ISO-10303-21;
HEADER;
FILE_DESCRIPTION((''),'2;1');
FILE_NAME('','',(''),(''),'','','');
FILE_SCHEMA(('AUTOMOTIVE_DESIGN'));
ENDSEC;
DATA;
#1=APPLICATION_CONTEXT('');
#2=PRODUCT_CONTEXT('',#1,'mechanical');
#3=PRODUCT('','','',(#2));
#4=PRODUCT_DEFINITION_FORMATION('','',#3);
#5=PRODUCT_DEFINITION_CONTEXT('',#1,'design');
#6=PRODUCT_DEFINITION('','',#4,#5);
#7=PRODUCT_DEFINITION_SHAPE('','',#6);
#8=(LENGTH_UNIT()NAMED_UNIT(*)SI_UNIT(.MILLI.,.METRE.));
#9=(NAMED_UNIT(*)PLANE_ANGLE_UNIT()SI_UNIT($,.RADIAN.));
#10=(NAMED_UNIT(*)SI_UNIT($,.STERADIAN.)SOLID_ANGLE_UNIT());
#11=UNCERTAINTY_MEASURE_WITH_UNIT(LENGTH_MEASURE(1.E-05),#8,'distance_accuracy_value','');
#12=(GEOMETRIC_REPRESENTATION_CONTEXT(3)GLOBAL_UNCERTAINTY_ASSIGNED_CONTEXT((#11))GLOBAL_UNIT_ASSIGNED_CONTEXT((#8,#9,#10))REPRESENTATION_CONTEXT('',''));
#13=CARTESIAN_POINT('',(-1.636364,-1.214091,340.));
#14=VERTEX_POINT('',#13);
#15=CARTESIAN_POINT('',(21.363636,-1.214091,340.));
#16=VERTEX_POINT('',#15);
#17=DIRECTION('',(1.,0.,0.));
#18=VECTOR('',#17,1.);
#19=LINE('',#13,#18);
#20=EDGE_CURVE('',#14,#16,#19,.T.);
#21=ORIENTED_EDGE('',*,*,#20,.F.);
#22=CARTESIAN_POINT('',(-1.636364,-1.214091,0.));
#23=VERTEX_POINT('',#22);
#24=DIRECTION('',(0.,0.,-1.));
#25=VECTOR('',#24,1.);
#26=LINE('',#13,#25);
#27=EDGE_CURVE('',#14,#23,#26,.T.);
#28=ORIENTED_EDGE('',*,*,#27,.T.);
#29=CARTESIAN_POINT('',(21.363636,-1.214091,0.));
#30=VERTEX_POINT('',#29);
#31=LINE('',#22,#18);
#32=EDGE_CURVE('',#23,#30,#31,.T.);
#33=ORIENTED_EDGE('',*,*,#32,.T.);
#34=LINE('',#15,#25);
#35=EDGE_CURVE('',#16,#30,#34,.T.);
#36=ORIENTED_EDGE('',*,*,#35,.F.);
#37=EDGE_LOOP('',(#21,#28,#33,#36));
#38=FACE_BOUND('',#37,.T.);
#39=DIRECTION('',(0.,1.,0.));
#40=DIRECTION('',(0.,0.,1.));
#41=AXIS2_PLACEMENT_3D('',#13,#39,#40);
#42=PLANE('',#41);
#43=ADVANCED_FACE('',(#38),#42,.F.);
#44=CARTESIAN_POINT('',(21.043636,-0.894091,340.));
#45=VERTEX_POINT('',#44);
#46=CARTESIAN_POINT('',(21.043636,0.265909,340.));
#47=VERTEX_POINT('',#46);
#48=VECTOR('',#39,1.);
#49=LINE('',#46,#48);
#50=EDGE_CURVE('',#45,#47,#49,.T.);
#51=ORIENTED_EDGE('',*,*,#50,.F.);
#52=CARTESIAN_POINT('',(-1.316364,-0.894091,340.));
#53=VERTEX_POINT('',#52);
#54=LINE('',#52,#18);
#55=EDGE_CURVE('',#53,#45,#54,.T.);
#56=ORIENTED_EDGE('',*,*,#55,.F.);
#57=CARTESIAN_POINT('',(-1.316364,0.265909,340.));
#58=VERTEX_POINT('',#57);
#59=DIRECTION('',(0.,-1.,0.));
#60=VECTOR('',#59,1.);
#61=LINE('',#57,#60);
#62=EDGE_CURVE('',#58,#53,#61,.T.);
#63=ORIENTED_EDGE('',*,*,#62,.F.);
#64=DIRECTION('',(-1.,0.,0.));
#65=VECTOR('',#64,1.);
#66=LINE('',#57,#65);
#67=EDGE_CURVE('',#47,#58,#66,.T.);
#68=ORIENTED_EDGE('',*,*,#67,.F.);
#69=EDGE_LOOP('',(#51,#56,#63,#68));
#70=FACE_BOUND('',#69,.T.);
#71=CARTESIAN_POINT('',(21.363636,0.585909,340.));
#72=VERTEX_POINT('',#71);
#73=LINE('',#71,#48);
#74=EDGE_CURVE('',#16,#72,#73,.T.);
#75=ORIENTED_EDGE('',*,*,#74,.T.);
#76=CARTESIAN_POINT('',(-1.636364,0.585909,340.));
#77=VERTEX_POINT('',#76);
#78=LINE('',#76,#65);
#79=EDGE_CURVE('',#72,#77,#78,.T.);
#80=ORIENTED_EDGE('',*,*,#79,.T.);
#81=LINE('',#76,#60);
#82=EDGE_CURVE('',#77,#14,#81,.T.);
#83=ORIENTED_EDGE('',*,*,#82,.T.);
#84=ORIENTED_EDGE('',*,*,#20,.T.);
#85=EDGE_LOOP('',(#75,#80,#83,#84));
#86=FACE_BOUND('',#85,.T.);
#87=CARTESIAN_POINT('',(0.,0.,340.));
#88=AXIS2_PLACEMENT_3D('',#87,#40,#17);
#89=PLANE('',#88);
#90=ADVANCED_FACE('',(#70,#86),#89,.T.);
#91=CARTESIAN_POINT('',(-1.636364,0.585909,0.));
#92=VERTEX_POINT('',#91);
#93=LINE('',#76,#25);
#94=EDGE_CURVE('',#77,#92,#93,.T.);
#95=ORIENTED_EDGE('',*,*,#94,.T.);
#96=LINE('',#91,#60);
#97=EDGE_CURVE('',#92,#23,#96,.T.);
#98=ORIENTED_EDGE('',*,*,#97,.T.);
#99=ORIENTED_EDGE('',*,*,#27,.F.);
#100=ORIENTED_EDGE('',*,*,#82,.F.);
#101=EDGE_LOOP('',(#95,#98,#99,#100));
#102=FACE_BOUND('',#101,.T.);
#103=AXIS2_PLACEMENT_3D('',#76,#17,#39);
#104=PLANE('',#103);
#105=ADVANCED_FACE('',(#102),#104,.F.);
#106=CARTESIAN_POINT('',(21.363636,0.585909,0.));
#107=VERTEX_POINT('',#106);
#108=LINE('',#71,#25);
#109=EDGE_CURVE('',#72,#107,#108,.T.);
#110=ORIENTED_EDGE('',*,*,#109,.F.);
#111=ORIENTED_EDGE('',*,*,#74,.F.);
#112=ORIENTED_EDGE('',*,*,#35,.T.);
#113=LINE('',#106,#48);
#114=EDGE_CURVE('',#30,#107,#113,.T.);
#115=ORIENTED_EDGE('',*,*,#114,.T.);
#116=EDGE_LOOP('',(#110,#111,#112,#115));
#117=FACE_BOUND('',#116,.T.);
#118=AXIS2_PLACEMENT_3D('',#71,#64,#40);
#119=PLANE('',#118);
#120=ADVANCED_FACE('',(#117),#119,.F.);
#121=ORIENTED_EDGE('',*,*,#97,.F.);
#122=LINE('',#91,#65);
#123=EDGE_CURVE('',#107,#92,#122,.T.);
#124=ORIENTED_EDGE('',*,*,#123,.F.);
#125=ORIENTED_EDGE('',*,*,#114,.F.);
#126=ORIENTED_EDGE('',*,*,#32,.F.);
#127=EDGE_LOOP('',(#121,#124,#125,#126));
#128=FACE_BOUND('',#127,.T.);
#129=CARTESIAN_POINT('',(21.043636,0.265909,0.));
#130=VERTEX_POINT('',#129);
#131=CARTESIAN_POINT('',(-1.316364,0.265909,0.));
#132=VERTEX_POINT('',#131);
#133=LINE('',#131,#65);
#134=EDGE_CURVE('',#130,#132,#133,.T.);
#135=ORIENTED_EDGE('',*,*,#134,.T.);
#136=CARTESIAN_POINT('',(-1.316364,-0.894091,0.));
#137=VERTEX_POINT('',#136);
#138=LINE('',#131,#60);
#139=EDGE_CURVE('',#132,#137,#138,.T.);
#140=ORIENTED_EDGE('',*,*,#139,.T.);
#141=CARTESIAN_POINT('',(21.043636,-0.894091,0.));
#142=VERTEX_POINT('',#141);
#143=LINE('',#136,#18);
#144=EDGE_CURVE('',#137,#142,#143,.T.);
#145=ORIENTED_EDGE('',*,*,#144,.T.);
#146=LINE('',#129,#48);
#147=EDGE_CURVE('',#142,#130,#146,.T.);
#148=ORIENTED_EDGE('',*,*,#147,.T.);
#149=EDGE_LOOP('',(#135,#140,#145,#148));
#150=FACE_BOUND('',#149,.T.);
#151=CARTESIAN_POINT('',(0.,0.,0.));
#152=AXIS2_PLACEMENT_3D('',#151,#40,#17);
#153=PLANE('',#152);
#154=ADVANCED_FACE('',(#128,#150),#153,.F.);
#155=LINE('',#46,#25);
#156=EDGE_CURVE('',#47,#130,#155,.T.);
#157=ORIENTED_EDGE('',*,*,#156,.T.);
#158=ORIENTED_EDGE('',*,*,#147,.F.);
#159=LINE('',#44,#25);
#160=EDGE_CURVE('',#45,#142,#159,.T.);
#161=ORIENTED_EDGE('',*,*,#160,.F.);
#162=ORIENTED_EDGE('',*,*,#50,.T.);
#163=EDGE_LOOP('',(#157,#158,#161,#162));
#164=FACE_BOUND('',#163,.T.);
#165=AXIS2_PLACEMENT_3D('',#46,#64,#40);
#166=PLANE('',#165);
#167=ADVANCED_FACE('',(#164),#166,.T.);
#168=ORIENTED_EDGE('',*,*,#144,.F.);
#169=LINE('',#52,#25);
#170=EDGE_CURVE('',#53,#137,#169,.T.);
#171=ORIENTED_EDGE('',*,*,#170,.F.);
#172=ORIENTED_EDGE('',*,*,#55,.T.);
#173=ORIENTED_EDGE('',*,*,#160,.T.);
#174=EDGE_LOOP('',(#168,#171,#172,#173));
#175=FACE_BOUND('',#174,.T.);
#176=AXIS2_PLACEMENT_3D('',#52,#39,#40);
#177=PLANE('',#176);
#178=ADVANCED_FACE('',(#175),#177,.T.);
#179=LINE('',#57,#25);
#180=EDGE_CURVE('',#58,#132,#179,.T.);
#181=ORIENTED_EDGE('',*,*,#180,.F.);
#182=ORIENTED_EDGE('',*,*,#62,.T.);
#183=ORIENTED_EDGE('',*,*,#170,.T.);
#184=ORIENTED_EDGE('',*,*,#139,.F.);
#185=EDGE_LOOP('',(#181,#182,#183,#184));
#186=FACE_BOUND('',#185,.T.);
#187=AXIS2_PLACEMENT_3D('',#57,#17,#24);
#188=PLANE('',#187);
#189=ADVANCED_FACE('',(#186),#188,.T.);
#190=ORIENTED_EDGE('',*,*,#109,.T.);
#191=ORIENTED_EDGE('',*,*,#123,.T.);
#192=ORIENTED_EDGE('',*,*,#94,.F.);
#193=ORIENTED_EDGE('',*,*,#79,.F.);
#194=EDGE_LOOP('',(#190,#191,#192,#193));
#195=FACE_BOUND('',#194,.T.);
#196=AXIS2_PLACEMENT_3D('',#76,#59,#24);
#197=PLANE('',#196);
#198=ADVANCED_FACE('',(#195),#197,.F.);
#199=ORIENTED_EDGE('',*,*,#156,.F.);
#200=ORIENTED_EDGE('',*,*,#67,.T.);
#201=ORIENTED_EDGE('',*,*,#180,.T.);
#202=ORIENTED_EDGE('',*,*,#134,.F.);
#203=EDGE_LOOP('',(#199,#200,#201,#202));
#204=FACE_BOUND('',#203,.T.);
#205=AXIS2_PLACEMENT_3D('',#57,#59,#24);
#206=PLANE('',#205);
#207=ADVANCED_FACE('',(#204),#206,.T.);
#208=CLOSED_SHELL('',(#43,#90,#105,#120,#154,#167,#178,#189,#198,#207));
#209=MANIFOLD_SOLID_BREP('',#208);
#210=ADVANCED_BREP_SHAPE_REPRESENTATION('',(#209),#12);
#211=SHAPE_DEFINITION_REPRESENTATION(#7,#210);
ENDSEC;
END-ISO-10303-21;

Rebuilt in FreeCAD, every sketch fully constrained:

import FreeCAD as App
import Part
import Sketcher
from FreeCAD import Vector
Q = App.Units.Quantity

doc = App.newDocument("Part")
params = doc.addObject("Spreadsheet::Sheet", "Params")
for row, (alias, value) in enumerate([
    ("sketch1_width", "23 mm"),
    ("sketch1_height", "1.8 mm"),
    ("sketch1_width2", "22.36 mm"),
    ("sketch1_height2", "1.16 mm"),
    ("pad1_length", "340 mm"),
], start=1):
    params.set(f"A{row}", alias)
    params.set(f"B{row}", "=" + value)
    params.setAlias(f"B{row}", alias)

body = doc.addObject("PartDesign::Body", "Body")

# Sketch on XY plane
sketch1 = body.newObject("Sketcher::SketchObject", "Sketch")
sketch1.AttachmentSupport = (doc.getObject("XY_Plane"), [""])
sketch1.MapMode = "FlatFace"
sketch1.addGeometry([
    Part.LineSegment(Vector(-1.6, 0.6, 0), Vector(-1.6, -1.2, 0)),  # 0
    Part.LineSegment(Vector(-1.6, -1.2, 0), Vector(21.4, -1.2, 0)),  # 1
    Part.LineSegment(Vector(21.4, -1.2, 0), Vector(21.4, 0.6, 0)),  # 2
    Part.LineSegment(Vector(21.4, 0.6, 0), Vector(-1.6, 0.6, 0)),  # 3
    Part.LineSegment(Vector(21, -0.9, 0), Vector(-1.3, -0.9, 0)),  # 4
    Part.LineSegment(Vector(-1.3, -0.9, 0), Vector(-1.3, 0.3, 0)),  # 5
    Part.LineSegment(Vector(-1.3, 0.3, 0), Vector(21, 0.3, 0)),  # 6
    Part.LineSegment(Vector(21, 0.3, 0), Vector(21, -0.9, 0)),  # 7
], False)
sketch1.addConstraint([
    Sketcher.Constraint("Coincident", 0, 2, 1, 1),
    Sketcher.Constraint("Coincident", 1, 2, 2, 1),
    Sketcher.Constraint("Coincident", 2, 2, 3, 1),
    Sketcher.Constraint("Coincident", 3, 2, 0, 1),
    Sketcher.Constraint("Coincident", 4, 2, 5, 1),
    Sketcher.Constraint("Coincident", 5, 2, 6, 1),
    Sketcher.Constraint("Coincident", 6, 2, 7, 1),
    Sketcher.Constraint("Coincident", 7, 2, 4, 1),
    Sketcher.Constraint("Vertical", 0),
    Sketcher.Constraint("Horizontal", 1),
    Sketcher.Constraint("Vertical", 2),
    Sketcher.Constraint("Horizontal", 3),
    Sketcher.Constraint("Horizontal", 4),
    Sketcher.Constraint("Vertical", 5),
    Sketcher.Constraint("Horizontal", 6),
    Sketcher.Constraint("Vertical", 7),
    Sketcher.Constraint("DistanceX", 1, 1, 1, 2, Q("23 mm")),
    Sketcher.Constraint("DistanceY", 0, 2, 0, 1, Q("1.8 mm")),
    Sketcher.Constraint("DistanceX", 4, 2, 4, 1, Q("22.36 mm")),
    Sketcher.Constraint("DistanceY", 5, 1, 5, 2, Q("1.16 mm")),
    Sketcher.Constraint("DistanceX", 0, 2, 4, 2, Q("0.32 mm")),
    Sketcher.Constraint("DistanceY", 0, 2, 4, 2, Q("0.32 mm")),
    Sketcher.Constraint("DistanceY", 0, 2, -1, 1, Q("1.214091 mm")),
    Sketcher.Constraint("DistanceX", 0, 2, -1, 1, Q("1.636364 mm")),
])
sketch1.setExpression("Constraints[16]", "Params.sketch1_width")
sketch1.setExpression("Constraints[17]", "Params.sketch1_height")
sketch1.setExpression("Constraints[18]", "Params.sketch1_width2")
sketch1.setExpression("Constraints[19]", "Params.sketch1_height2")
pad1 = body.newObject("PartDesign::Pad", "Pad")
pad1.Profile = sketch1
pad1.setExpression("Length", "Params.pad1_length")

doc.recompute()
